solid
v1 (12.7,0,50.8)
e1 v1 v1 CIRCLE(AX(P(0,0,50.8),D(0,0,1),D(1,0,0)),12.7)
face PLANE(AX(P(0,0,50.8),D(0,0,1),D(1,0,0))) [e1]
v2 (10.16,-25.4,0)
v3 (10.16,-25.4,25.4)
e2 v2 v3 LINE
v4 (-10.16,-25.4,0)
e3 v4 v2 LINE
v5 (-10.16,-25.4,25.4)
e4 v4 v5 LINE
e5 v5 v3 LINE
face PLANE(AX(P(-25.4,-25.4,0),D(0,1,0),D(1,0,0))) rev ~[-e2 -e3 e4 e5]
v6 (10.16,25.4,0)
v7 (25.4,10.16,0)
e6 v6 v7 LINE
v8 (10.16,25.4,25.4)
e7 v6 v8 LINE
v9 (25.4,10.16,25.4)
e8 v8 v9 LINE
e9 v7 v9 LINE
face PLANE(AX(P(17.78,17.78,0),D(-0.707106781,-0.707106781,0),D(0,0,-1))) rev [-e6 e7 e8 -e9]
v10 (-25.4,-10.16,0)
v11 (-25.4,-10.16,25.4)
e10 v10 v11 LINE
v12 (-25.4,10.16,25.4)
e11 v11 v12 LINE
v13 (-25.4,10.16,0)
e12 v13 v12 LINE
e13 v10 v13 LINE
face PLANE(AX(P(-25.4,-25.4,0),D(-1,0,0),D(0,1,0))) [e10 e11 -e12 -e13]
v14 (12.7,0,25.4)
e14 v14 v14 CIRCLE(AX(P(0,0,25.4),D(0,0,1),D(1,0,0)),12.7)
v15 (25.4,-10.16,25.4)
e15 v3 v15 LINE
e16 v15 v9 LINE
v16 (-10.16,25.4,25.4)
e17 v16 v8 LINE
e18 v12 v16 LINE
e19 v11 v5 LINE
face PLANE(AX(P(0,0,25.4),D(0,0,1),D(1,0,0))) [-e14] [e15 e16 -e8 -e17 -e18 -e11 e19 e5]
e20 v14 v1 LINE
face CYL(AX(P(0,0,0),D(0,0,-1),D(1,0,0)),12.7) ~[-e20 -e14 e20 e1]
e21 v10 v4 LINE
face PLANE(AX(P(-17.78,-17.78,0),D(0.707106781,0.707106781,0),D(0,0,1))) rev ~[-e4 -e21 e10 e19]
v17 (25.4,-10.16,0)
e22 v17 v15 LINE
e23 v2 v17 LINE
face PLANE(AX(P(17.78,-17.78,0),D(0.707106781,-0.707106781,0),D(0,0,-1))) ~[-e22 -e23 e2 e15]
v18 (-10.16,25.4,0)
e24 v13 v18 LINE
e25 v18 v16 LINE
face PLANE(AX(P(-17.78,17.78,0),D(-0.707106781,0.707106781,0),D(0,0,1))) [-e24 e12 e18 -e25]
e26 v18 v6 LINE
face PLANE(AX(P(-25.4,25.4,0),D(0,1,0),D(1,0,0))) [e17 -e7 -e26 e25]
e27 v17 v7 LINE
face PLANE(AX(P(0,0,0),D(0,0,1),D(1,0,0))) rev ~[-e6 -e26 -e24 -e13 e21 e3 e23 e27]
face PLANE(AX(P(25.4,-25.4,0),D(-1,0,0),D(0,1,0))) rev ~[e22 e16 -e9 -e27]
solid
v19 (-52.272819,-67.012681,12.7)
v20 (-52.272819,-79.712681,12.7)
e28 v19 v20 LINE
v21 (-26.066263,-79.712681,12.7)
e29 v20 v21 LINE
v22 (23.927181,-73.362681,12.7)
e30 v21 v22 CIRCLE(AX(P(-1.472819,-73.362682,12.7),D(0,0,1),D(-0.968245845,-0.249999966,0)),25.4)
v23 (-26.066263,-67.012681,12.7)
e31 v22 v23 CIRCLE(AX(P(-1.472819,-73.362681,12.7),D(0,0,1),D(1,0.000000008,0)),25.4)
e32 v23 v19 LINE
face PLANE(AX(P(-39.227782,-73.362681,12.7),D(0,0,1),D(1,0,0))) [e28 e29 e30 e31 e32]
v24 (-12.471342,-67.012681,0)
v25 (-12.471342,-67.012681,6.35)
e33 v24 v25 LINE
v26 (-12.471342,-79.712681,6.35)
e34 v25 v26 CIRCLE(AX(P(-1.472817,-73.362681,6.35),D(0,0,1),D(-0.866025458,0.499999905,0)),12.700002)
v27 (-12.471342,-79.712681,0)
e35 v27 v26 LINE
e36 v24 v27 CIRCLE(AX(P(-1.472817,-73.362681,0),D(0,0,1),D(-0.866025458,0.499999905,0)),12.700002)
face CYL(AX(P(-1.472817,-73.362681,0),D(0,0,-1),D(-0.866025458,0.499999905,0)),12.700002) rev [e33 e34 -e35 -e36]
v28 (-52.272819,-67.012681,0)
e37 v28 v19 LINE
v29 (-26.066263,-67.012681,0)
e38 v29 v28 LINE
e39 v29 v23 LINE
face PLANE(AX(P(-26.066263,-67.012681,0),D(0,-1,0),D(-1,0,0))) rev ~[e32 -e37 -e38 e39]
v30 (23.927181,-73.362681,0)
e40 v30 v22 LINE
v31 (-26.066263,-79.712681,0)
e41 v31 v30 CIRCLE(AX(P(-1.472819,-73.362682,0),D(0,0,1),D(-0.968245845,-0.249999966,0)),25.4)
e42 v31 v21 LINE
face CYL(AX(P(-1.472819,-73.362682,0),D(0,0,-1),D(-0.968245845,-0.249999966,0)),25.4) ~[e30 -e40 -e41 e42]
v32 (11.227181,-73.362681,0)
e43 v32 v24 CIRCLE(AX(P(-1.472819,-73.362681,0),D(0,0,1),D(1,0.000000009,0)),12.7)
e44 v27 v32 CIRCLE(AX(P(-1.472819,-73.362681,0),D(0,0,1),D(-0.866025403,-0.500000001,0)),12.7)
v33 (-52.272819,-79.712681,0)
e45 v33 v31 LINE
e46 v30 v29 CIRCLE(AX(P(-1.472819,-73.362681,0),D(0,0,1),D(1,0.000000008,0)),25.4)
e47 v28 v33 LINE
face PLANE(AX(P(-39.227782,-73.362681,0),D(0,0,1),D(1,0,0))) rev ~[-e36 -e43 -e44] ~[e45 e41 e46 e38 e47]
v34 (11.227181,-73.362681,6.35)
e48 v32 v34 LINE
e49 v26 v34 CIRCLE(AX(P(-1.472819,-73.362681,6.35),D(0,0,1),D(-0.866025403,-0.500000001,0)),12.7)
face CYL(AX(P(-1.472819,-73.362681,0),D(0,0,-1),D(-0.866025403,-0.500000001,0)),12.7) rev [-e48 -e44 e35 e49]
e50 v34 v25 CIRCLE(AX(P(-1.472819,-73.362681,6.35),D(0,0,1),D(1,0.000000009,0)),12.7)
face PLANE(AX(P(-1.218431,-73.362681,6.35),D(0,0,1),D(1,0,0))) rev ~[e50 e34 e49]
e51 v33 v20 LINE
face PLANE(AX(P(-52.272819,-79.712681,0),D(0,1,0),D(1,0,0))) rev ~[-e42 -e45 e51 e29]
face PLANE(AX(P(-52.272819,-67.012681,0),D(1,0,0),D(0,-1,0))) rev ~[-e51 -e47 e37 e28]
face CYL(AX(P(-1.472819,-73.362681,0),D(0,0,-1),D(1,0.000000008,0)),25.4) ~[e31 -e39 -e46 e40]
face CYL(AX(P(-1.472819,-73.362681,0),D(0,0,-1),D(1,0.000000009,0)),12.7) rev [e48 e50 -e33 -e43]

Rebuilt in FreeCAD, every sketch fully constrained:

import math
import FreeCAD as App
import Part
import Sketcher
Q = App.Units.Quantity


def edges_at(feature, points):
    """Names of the edges that pass closest to the given points."""
    edges = feature.Shape.Edges
    near = lambda p: min(range(len(edges)), key=lambda i: edges[i].distToShape(Part.Vertex(*p))[0])
    return sorted({f"Edge{near(p) + 1}" for p in points})

doc = App.newDocument("Part")
body = doc.addObject("PartDesign::Body", "Body")

# Sketch on XY plane
sketch1 = body.newObject("Sketcher::SketchObject", "Sketch")
sketch1.AttachmentSupport = (doc.getObject("XY_Plane"), [""])
sketch1.MapMode = "FlatFace"
sketch1.addGeometry(Part.LineSegment(App.Vector(-25.4, 25.4, 0), App.Vector(-25.4, -25.4, 0)), False)
sketch1.addGeometry(Part.LineSegment(App.Vector(-25.4, -25.4, 0), App.Vector(25.4, -25.4, 0)), False)
sketch1.addGeometry(Part.LineSegment(App.Vector(25.4, -25.4, 0), App.Vector(25.4, 25.4, 0)), False)
sketch1.addGeometry(Part.LineSegment(App.Vector(25.4, 25.4, 0), App.Vector(-25.4, 25.4, 0)), False)
sketch1.addGeometry(Part.Circle(App.Vector(0, 0, 0), App.Vector(0, 0, 1), 12.7), False)
sketch1.addConstraint(Sketcher.Constraint("Coincident", 0, 2, 1, 1))
sketch1.addConstraint(Sketcher.Constraint("Coincident", 1, 2, 2, 1))
sketch1.addConstraint(Sketcher.Constraint("Coincident", 2, 2, 3, 1))
sketch1.addConstraint(Sketcher.Constraint("Coincident", 3, 2, 0, 1))
sketch1.addConstraint(Sketcher.Constraint("Vertical", 0))
sketch1.addConstraint(Sketcher.Constraint("Horizontal", 1))
sketch1.addConstraint(Sketcher.Constraint("Vertical", 2))
sketch1.addConstraint(Sketcher.Constraint("Horizontal", 3))
sketch1.addConstraint(Sketcher.Constraint("Coincident", 4, 3, -1, 1))
sketch1.addConstraint(Sketcher.Constraint("Symmetric", 0, 2, 2, 2, -1, 1))
sketch1.addConstraint(Sketcher.Constraint("Equal", 3, 0))
sketch1.addConstraint(Sketcher.Constraint("Diameter", 4, Q("1 in")))
sketch1.addConstraint(Sketcher.Constraint("DistanceX", 1, 1, 1, 2, Q("2 in")))
pad1 = body.newObject("PartDesign::Pad", "Pad")
pad1.Profile = sketch1
pad1.Length = Q("1 in")

# Sketch on XY plane
sketch2 = body.newObject("Sketcher::SketchObject", "Sketch001")
sketch2.AttachmentSupport = (doc.getObject("XY_Plane"), [""])
sketch2.MapMode = "FlatFace"
sketch2.addGeometry(Part.Circle(App.Vector(0, 0, 0), App.Vector(0, 0, 1), 12.7), False)
sketch2.addConstraint(Sketcher.Constraint("Coincident", 0, 3, -1, 1))
sketch2.addConstraint(Sketcher.Constraint("Diameter", 0, Q("1 in")))
pad2 = body.newObject("PartDesign::Pad", "Pad001")
pad2.Profile = sketch2
pad2.Length = Q("2 in")
doc.recompute()

chamfer = body.newObject("PartDesign::Chamfer", "Chamfer")
chamfer.Base = (pad2, edges_at(pad2, [
    (-25.4, -25.4, 12.7),
    (25.4, -25.4, 12.7),
    (25.4, 25.4, 12.7),
    (-25.4, 25.4, 12.7),
]))
chamfer.Size = Q("0.6 in")
body2 = doc.addObject("PartDesign::Body", "Body001")

# Sketch on XY plane
sketch3 = body2.newObject("Sketcher::SketchObject", "Sketch002")
sketch3.AttachmentSupport = (doc.getObject("XY_Plane001"), [""])
sketch3.MapMode = "FlatFace"
sketch3.addGeometry(Part.LineSegment(App.Vector(-52.272819, -67.012681, 0), App.Vector(-52.272819, -79.712681, 0)), False)
sketch3.addGeometry(Part.LineSegment(App.Vector(-52.272819, -79.712681, 0), App.Vector(-26.066263, -79.712681, 0)), False)
sketch3.addGeometry(Part.ArcOfCircle(Part.Circle(App.Vector(-1.472819, -73.362682, 0), App.Vector(0, 0, 1), 25.4), math.radians(-165.52249), math.radians(0.000002)), False)
sketch3.addGeometry(Part.ArcOfCircle(Part.Circle(App.Vector(-1.472819, -73.362681, 0), App.Vector(0, 0, 1), 25.4), math.radians(0), math.radians(165.522487)), False)
sketch3.addGeometry(Part.LineSegment(App.Vector(-26.066263, -67.012681, 0), App.Vector(-52.272819, -67.012681, 0)), False)
sketch3.addConstraint(Sketcher.Constraint("Coincident", 0, 2, 1, 1))
sketch3.addConstraint(Sketcher.Constraint("Coincident", 1, 2, 2, 1))
sketch3.addConstraint(Sketcher.Constraint("Tangent", 2, 2, 3, 1))
sketch3.addConstraint(Sketcher.Constraint("Coincident", 3, 2, 4, 1))
sketch3.addConstraint(Sketcher.Constraint("Coincident", 4, 2, 0, 1))
sketch3.addConstraint(Sketcher.Constraint("Vertical", 0))
sketch3.addConstraint(Sketcher.Constraint("Horizontal", 1))
sketch3.addConstraint(Sketcher.Constraint("Horizontal", 4))
sketch3.addConstraint(Sketcher.Constraint("Equal", 2, 3))
sketch3.addConstraint(Sketcher.Constraint("Horizontal", 3, 3, 2, 2))
sketch3.addConstraint(Sketcher.Constraint("Vertical", 1, 2, 3, 2))
sketch3.addConstraint(Sketcher.Constraint("Radius", 2, Q("1 in")))
sketch3.addConstraint(Sketcher.Constraint("DistanceY", 0, 2, 0, 1, Q("0.5 in")))
sketch3.addConstraint(Sketcher.Constraint("DistanceX", 0, 2, 3, 3, Q("2 in")))
sketch3.addConstraint(Sketcher.Constraint("DistanceX", 2, 3, -1, 1, 1.472819))
sketch3.addConstraint(Sketcher.Constraint("DistanceY", 2, 3, -1, 1, 73.362682))
pad3 = body2.newObject("PartDesign::Pad", "Pad002")
pad3.Profile = sketch3
pad3.Length = Q("0.5 in")

# Sketch on XY plane
sketch4 = body2.newObject("Sketcher::SketchObject", "Sketch003")
sketch4.AttachmentSupport = (doc.getObject("XY_Plane001"), [""])
sketch4.MapMode = "FlatFace"
sketch4.addGeometry(Part.ArcOfCircle(Part.Circle(App.Vector(-1.472819, -73.362681, 0), App.Vector(0, 0, 1), 12.7), math.radians(0.000001), math.radians(150)), False)
sketch4.addGeometry(Part.ArcOfCircle(Part.Circle(App.Vector(-1.472817, -73.362681, 0), App.Vector(0, 0, 1), 12.700002), math.radians(150.000006), math.radians(209.999994)), False)
sketch4.addGeometry(Part.ArcOfCircle(Part.Circle(App.Vector(-1.472819, -73.362681, 0), App.Vector(0, 0, 1), 12.7), math.radians(-150), math.radians(-0.000001)), False)
sketch4.addConstraint(Sketcher.Constraint("Tangent", 0, 2, 1, 1))
sketch4.addConstraint(Sketcher.Constraint("Tangent", 1, 2, 2, 1))
sketch4.addConstraint(Sketcher.Constraint("Tangent", 2, 2, 0, 1))
sketch4.addConstraint(Sketcher.Constraint("Horizontal", 1, 3, 2, 2))
sketch4.addConstraint(Sketcher.Constraint("Vertical", 0, 2, 1, 2))
sketch4.addConstraint(Sketcher.Constraint("Radius", 0, Q("0.5 in")))
sketch4.addConstraint(Sketcher.Constraint("DistanceY", 1, 2, 0, 2, Q("0.5 in")))
sketch4.addConstraint(Sketcher.Constraint("DistanceX", 0, 3, -1, 1, 1.472819))
sketch4.addConstraint(Sketcher.Constraint("DistanceY", 0, 3, -1, 1, 73.362681))
pocket1 = body2.newObject("PartDesign::Pocket", "Pocket")
pocket1.Profile = sketch4
pocket1.Length = Q("0.25 in")
pocket1.Reversed = True

doc.recompute()
